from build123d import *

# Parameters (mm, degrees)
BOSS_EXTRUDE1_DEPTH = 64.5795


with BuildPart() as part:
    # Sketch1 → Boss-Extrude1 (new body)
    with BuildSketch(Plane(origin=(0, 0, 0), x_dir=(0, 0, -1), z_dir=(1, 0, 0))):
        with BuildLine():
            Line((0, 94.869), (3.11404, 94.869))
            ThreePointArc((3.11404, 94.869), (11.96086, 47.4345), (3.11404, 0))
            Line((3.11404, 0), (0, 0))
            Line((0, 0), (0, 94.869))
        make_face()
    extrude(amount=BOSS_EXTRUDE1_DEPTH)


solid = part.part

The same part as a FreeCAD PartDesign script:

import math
import FreeCAD as App
import Part
import Sketcher
Q = App.Units.Quantity

doc = App.newDocument("Part")
params = doc.addObject("Spreadsheet::Sheet", "Params")
for row, (alias, value) in enumerate([
    ("sketch1_width", "3.735 in"),
    ("pad1_length", "2.5425 in"),
], start=1):
    params.set(f"A{row}", alias)
    params.set(f"B{row}", "=" + value)
    params.setAlias(f"B{row}", alias)

body = doc.addObject("PartDesign::Body", "Body")

# Sketch on YZ plane
sketch1 = body.newObject("Sketcher::SketchObject", "Sketch")
sketch1.AttachmentSupport = (doc.getObject("YZ_Plane"), [""])
sketch1.MapMode = "FlatFace"
sketch1.addGeometry([
    Part.LineSegment(App.Vector(94.9, -3.1, 0), App.Vector(94.9, 0, 0)),
    Part.LineSegment(App.Vector(94.9, 0, 0), App.Vector(0, 0, 0)),
    Part.LineSegment(App.Vector(0, 0, 0), App.Vector(0, -3.1, 0)),
    Part.ArcOfCircle(Part.Circle(App.Vector(47.4, 119.6, 0), App.Vector(0, 0, 1), 131.6), math.radians(-111), math.radians(-69)),
], False)
sketch1.addConstraint([
    Sketcher.Constraint("Coincident", 0, 2, 1, 1),
    Sketcher.Constraint("Coincident", 1, 2, 2, 1),
    Sketcher.Constraint("Coincident", 2, 2, 3, 1),
    Sketcher.Constraint("Coincident", 3, 2, 0, 1),
    Sketcher.Constraint("Vertical", 0),
    Sketcher.Constraint("Horizontal", 1),
    Sketcher.Constraint("Vertical", 2),
    Sketcher.Constraint("Coincident", 1, 2, -1, 1),
    Sketcher.Constraint("Horizontal", 2, 2, 3, 2),
    Sketcher.Constraint("DistanceX", 1, 2, 1, 1, Q("3.735 in")),
    Sketcher.Constraint("DistanceY", 0, 1, 0, 2, Q("0.1226 in")),
    Sketcher.Constraint("Radius", 3, 131.589544),
])
sketch1.setExpression("Constraints[9]", "Params.sketch1_width")
pad1 = body.newObject("PartDesign::Pad", "Pad")
pad1.Profile = sketch1
pad1.setExpression("Length", "Params.pad1_length")

doc.recompute()
